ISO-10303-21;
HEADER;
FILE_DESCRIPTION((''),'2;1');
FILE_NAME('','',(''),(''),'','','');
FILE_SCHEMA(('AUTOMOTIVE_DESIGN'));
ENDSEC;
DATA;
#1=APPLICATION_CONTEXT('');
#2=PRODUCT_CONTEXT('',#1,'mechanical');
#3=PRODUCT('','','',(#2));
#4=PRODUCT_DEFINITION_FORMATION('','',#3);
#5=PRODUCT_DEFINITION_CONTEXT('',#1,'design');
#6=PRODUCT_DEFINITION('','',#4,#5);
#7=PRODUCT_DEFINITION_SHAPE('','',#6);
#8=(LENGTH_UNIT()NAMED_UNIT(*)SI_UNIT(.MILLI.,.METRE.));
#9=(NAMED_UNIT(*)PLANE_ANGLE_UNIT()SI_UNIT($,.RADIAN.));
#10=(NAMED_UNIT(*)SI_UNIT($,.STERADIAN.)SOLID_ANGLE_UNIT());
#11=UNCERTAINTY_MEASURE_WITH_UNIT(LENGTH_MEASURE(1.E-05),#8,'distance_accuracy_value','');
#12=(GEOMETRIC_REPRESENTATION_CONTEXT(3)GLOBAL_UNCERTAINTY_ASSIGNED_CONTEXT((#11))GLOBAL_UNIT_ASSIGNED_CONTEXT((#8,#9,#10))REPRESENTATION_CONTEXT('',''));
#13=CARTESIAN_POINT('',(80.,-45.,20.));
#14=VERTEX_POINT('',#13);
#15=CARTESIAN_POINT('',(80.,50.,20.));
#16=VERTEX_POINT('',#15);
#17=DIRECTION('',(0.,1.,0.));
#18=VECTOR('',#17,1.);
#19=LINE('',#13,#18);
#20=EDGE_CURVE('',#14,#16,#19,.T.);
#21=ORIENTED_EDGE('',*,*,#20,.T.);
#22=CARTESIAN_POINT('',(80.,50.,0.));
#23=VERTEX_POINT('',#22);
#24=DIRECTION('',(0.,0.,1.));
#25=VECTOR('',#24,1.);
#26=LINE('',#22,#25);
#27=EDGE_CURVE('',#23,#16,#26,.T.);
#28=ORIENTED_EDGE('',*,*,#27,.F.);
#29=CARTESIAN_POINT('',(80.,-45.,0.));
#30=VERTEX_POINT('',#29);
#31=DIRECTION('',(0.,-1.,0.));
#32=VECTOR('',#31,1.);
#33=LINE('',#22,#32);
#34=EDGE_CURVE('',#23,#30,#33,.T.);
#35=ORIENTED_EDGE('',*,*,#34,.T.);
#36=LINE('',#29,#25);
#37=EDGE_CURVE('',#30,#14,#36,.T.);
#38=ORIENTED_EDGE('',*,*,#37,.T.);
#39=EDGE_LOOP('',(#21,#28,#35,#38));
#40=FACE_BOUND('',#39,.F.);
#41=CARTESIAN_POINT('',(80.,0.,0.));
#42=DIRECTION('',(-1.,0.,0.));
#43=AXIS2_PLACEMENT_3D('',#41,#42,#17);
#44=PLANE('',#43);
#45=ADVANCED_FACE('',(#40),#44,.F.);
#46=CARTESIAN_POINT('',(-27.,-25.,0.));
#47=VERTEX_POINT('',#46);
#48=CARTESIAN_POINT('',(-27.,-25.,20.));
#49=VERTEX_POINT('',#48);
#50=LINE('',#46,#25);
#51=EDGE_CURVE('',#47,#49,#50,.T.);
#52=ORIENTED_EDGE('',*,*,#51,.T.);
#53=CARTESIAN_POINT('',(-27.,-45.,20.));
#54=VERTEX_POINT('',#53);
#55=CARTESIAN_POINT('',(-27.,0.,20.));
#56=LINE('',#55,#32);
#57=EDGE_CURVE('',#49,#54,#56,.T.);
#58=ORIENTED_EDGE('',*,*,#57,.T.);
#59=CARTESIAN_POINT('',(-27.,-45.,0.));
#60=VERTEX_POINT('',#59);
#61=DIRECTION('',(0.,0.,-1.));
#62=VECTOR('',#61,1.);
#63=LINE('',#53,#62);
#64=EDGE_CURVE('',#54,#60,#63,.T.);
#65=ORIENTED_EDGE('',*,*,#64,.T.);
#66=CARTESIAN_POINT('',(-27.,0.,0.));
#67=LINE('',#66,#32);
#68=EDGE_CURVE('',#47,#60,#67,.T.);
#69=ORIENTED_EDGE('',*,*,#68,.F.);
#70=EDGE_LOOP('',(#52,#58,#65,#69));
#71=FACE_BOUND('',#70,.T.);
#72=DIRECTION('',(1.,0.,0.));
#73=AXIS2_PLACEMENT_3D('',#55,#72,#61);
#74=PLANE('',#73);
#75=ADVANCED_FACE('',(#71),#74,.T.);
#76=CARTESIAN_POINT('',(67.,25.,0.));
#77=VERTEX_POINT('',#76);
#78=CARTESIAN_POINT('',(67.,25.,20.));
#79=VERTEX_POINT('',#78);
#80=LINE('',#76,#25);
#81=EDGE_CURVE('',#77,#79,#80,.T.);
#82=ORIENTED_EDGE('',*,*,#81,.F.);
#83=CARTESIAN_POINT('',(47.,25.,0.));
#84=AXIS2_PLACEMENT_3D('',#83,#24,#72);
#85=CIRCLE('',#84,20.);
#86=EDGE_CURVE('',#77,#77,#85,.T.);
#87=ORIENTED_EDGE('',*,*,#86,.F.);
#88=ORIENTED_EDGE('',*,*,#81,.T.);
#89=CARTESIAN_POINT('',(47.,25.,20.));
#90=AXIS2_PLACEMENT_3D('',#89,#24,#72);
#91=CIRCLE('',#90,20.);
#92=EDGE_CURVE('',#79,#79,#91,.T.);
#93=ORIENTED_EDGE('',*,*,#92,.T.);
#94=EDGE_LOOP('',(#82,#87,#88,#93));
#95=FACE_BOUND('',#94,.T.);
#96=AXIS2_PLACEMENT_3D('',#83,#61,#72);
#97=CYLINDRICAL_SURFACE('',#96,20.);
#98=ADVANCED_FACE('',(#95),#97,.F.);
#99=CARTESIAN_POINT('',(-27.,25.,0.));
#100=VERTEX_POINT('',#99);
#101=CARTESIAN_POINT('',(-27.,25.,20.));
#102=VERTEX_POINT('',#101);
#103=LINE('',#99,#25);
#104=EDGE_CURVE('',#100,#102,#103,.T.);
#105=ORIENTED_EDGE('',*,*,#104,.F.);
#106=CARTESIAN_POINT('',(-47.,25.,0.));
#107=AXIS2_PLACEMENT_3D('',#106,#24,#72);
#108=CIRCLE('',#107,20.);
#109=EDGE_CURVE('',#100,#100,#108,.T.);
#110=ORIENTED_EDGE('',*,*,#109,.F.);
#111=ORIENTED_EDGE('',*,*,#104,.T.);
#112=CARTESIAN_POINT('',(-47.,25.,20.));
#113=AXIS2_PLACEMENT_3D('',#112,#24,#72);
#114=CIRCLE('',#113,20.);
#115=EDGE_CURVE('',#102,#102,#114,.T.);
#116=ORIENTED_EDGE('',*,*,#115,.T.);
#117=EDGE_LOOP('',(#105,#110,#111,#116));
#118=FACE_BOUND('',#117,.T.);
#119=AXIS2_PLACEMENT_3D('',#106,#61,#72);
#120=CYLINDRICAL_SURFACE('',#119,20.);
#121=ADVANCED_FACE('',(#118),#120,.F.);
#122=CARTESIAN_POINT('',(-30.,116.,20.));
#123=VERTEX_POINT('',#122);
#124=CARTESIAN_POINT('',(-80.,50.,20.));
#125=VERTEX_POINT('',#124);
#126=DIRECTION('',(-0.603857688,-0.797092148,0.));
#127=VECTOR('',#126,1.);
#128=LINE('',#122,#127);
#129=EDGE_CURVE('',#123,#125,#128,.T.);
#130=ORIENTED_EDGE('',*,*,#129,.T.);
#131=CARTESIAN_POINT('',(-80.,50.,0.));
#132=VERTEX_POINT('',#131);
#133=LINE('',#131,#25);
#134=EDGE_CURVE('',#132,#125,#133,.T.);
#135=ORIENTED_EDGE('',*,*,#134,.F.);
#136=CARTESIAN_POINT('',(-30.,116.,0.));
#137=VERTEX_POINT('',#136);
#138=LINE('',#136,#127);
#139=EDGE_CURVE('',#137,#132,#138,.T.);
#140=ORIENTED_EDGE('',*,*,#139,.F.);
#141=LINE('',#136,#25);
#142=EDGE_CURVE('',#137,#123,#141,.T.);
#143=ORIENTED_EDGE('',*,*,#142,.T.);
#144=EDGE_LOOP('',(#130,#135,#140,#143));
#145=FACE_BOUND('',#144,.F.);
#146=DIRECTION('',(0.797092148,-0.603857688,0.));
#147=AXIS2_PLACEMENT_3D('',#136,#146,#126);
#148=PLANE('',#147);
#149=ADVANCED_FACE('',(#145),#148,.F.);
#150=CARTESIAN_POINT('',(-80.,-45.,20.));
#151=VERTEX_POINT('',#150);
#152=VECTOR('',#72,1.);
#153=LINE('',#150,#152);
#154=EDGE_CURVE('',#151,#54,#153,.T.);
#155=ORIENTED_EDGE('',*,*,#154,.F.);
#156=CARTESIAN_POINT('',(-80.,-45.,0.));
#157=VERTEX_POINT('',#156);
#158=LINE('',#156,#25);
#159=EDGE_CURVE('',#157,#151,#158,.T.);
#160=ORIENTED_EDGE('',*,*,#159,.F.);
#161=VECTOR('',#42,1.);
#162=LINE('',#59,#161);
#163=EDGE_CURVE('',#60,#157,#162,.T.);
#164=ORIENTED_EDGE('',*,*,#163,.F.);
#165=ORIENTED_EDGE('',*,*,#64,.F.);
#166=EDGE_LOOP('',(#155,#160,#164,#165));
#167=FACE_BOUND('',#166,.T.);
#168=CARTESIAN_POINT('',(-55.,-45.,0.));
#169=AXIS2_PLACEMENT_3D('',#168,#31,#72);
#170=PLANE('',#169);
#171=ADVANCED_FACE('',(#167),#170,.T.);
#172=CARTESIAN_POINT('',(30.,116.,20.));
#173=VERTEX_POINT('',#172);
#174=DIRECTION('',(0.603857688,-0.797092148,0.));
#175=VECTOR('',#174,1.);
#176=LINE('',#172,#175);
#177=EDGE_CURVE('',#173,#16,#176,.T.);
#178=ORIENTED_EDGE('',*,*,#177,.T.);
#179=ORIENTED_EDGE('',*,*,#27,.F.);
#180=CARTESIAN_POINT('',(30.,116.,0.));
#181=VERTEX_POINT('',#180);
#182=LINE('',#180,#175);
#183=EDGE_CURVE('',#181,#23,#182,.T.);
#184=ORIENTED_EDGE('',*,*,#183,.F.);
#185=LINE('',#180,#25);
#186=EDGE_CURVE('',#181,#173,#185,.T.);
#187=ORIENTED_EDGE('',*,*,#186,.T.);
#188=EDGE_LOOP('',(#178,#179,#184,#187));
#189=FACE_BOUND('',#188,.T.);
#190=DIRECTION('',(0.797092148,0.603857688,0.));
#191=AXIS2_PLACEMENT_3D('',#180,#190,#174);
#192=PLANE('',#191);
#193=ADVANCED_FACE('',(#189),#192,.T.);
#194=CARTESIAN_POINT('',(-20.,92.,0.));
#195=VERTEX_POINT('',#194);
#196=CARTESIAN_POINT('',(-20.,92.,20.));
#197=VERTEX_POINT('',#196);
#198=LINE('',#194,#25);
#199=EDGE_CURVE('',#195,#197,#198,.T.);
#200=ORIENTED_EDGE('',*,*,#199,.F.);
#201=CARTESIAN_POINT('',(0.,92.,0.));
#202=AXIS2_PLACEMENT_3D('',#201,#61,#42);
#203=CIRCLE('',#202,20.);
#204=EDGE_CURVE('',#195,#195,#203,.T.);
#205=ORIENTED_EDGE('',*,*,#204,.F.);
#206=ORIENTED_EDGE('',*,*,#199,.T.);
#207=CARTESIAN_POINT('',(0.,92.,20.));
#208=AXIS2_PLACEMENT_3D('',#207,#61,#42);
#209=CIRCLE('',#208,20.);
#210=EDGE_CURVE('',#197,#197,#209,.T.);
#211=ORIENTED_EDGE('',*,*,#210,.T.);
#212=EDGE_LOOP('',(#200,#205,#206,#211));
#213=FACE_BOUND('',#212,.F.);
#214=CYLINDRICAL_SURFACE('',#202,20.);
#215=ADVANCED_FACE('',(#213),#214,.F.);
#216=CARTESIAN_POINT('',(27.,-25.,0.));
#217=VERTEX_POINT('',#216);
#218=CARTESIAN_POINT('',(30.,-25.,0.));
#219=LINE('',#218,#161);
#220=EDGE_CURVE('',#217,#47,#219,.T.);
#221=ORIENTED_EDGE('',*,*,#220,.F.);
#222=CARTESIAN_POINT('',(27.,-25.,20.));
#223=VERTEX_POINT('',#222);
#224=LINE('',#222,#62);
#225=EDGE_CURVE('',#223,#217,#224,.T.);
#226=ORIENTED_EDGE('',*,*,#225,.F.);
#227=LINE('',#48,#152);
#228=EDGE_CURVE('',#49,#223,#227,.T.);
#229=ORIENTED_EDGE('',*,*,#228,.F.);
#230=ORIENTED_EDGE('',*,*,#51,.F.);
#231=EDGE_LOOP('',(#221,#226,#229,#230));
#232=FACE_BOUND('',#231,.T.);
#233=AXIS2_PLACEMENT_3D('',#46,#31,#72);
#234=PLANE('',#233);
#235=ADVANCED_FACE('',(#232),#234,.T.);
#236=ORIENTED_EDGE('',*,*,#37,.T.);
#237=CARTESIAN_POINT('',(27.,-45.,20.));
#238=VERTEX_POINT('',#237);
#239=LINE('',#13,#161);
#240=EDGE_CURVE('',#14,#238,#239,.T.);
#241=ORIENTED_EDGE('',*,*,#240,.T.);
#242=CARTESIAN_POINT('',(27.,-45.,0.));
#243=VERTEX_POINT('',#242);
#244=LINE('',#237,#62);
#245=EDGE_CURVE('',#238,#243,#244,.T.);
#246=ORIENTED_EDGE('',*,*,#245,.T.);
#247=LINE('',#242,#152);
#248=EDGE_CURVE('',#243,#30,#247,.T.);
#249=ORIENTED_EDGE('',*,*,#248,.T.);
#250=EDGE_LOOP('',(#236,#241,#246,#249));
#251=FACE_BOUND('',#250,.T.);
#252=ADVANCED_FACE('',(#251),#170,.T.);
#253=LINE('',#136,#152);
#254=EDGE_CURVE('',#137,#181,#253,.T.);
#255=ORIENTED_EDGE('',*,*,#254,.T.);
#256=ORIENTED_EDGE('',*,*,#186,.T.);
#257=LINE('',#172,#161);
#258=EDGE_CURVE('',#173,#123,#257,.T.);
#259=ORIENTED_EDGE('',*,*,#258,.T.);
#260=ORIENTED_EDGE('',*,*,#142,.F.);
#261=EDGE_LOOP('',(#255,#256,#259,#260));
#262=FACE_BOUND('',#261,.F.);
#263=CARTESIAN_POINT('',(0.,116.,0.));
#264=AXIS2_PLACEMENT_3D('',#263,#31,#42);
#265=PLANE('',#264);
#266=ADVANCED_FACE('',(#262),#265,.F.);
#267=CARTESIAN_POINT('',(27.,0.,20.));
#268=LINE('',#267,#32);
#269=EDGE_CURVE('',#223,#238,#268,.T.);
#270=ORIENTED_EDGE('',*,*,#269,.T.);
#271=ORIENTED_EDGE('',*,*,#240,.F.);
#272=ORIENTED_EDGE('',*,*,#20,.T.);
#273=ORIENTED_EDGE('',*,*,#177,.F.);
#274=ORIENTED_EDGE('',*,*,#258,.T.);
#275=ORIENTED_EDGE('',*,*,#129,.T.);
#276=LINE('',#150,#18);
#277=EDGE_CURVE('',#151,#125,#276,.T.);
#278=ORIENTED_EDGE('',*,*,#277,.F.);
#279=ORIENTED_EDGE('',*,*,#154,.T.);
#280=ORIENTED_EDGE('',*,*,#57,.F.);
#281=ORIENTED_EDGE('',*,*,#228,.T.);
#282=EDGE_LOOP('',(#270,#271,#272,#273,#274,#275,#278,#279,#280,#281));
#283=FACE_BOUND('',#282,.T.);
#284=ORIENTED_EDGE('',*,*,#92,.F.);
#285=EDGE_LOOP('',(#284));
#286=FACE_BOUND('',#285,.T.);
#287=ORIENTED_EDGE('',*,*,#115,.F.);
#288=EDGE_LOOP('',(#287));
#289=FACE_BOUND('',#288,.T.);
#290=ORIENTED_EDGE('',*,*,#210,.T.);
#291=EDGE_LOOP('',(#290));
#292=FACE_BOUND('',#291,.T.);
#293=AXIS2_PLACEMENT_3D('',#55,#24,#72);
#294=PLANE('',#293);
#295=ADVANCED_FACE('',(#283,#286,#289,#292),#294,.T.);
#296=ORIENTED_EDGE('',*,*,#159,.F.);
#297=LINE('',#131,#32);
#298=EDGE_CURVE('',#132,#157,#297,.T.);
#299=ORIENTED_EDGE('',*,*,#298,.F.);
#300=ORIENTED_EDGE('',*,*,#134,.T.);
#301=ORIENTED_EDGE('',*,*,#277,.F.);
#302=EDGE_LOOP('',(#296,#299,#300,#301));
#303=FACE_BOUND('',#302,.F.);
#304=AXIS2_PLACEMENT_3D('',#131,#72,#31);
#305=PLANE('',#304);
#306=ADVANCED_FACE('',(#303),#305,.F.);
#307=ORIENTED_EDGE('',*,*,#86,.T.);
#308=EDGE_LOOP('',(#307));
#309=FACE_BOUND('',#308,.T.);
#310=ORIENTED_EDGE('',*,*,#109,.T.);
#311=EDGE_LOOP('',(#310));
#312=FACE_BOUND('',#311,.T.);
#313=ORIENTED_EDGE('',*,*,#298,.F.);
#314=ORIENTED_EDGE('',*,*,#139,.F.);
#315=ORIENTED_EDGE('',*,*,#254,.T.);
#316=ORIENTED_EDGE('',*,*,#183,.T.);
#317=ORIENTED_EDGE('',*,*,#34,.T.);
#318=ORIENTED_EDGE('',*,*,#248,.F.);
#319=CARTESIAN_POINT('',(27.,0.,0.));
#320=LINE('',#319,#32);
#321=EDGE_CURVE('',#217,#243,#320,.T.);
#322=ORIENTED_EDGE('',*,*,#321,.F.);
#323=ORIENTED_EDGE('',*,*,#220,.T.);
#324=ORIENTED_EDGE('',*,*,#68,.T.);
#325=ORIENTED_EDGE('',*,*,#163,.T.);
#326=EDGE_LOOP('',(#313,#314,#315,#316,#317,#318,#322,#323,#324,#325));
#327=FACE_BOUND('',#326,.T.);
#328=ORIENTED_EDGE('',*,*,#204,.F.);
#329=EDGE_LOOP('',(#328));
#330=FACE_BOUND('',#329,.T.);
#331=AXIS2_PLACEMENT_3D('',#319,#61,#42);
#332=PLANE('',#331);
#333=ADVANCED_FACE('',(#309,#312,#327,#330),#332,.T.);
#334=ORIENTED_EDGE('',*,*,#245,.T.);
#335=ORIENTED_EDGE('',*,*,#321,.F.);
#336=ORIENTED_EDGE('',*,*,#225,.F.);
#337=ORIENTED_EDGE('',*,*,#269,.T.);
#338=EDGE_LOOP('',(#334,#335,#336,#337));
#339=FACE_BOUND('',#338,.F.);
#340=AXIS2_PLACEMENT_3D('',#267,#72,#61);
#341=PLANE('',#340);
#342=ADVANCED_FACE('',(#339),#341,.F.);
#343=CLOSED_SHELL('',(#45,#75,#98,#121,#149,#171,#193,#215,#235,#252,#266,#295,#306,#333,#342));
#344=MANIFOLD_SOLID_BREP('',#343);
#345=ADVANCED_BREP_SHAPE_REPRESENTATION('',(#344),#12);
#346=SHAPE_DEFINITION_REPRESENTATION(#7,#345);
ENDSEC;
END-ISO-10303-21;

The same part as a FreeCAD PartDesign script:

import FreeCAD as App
import Part
import Sketcher
from FreeCAD import Vector

doc = App.newDocument("Part")
body = doc.addObject("PartDesign::Body", "Body")

sketch1 = body.newObject("Sketcher::SketchObject", "Sketch")
sketch1.AttachmentSupport = (doc.getObject("XY_Plane"), [""])
sketch1.MapMode = "FlatFace"
sketch1.addGeometry(Part.LineSegment(Vector(-80, 50, 0), Vector(-80, -15, 0)), False)
sketch1.addGeometry(Part.LineSegment(Vector(-80, -15, 0), Vector(-55, -15, 0)), False)
sketch1.addGeometry(Part.LineSegment(Vector(-55, -15, 0), Vector(-55, 0, 0)), False)
sketch1.addGeometry(Part.LineSegment(Vector(-55, 0, 0), Vector(55, 0, 0)), False)
sketch1.addGeometry(Part.LineSegment(Vector(55, 0, 0), Vector(55, -15, 0)), False)
sketch1.addGeometry(Part.LineSegment(Vector(55, -15, 0), Vector(80, -15, 0)), False)
sketch1.addGeometry(Part.LineSegment(Vector(80, -15, 0), Vector(80, 50, 0)), False)
sketch1.addGeometry(Part.LineSegment(Vector(80, 50, 0), Vector(30, 116, 0)), False)
sketch1.addGeometry(Part.LineSegment(Vector(30, 116, 0), Vector(-30, 116, 0)), False)
sketch1.addGeometry(Part.LineSegment(Vector(-30, 116, 0), Vector(-80, 50, 0)), False)
sketch1.addGeometry(Part.Circle(Vector(-47, 25, 0), Vector(0, 0, 1), 20), False)
sketch1.addGeometry(Part.Circle(Vector(47, 25, 0), Vector(0, 0, 1), 20), False)
sketch1.addGeometry(Part.Circle(Vector(0, 92, 0), Vector(0, 0, 1), 8), False)
sketch1.addConstraint(Sketcher.Constraint("Coincident", 0, 2, 1, 1))
sketch1.addConstraint(Sketcher.Constraint("Coincident", 1, 2, 2, 1))
sketch1.addConstraint(Sketcher.Constraint("Coincident", 2, 2, 3, 1))
sketch1.addConstraint(Sketcher.Constraint("Coincident", 3, 2, 4, 1))
sketch1.addConstraint(Sketcher.Constraint("Coincident", 4, 2, 5, 1))
sketch1.addConstraint(Sketcher.Constraint("Coincident", 5, 2, 6, 1))
sketch1.addConstraint(Sketcher.Constraint("Coincident", 6, 2, 7, 1))
sketch1.addConstraint(Sketcher.Constraint("Coincident", 7, 2, 8, 1))
sketch1.addConstraint(Sketcher.Constraint("Coincident", 8, 2, 9, 1))
sketch1.addConstraint(Sketcher.Constraint("Coincident", 9, 2, 0, 1))
sketch1.addConstraint(Sketcher.Constraint("Vertical", 0))
sketch1.addConstraint(Sketcher.Constraint("Horizontal", 1))
sketch1.addConstraint(Sketcher.Constraint("Vertical", 2))
sketch1.addConstraint(Sketcher.Constraint("Horizontal", 3))
sketch1.addConstraint(Sketcher.Constraint("Vertical", 4))
sketch1.addConstraint(Sketcher.Constraint("Horizontal", 5))
sketch1.addConstraint(Sketcher.Constraint("Vertical", 6))
sketch1.addConstraint(Sketcher.Constraint("Horizontal", 8))
sketch1.addConstraint(Sketcher.Constraint("Equal", 10, 11))
sketch1.addConstraint(Sketcher.Constraint("Symmetric", 2, 2, 3, 2, -1, 1))
sketch1.addConstraint(Sketcher.Constraint("Symmetric", 10, 3, 11, 3, -2))
sketch1.addConstraint(Sketcher.Constraint("Symmetric", 0, 2, 5, 2, -2))
sketch1.addConstraint(Sketcher.Constraint("PointOnObject", 12, 3, -2))
sketch1.addConstraint(Sketcher.Constraint("Horizontal", 6, 2, 9, 2))
sketch1.addConstraint(Sketcher.Constraint("Equal", 7, 9))
sketch1.addConstraint(Sketcher.Constraint("Diameter", 10, 40.0))
sketch1.addConstraint(Sketcher.Constraint("Diameter", 12, 16.0))
sketch1.addConstraint(Sketcher.Constraint("DistanceX", 1, 1, 1, 2, 25.0))
sketch1.addConstraint(Sketcher.Constraint("DistanceX", 8, 2, 8, 1, 60.0))
sketch1.addConstraint(Sketcher.Constraint("DistanceY", 2, 1, 2, 2, 15.0))
sketch1.addConstraint(Sketcher.Constraint("DistanceY", -1, 1, 10, 3, 25.0))
sketch1.addConstraint(Sketcher.Constraint("DistanceY", -1, 1, 6, 2, 50.0))
sketch1.addConstraint(Sketcher.Constraint("DistanceY", 12, 3, 7, 2, 24.0))
sketch1.addConstraint(Sketcher.Constraint("DistanceX", 7, 2, 6, 2, 50.0))
sketch1.addConstraint(Sketcher.Constraint("DistanceX", 10, 3, -1, 1, 47.0))
sketch1.addConstraint(Sketcher.Constraint("DistanceY", -1, 1, 12, 3, 92.0))
pad1 = body.newObject("PartDesign::Pad", "Pad")
pad1.Profile = sketch1
pad1.Length = 20

sketch2 = body.newObject("Sketcher::SketchObject", "Sketch001")
sketch2.AttachmentSupport = (doc.getObject("XY_Plane"), [""])
sketch2.MapMode = "FlatFace"
sketch2.addGeometry(Part.Circle(Vector(0, 92, 0), Vector(0, 0, 1), 20), False)
sketch2.addGeometry(Part.Circle(Vector(0, 92, 0), Vector(0, 0, 1), 8), False)
sketch2.addConstraint(Sketcher.Constraint("Coincident", 1, 3, 0, 3))
sketch2.addConstraint(Sketcher.Constraint("PointOnObject", 0, 3, -2))
sketch2.addConstraint(Sketcher.Constraint("Diameter", 0, 40.0))
sketch2.addConstraint(Sketcher.Constraint("Diameter", 1, 16.0))
sketch2.addConstraint(Sketcher.Constraint("DistanceY", -1, 1, 0, 3, 92.0))
pocket1 = body.newObject("PartDesign::Pocket", "Pocket")
pocket1.Profile = sketch2
pocket1.Length = 20
pocket1.Reversed = True

sketch3 = body.newObject("Sketcher::SketchObject", "Sketch002")
sketch3.AttachmentSupport = (doc.getObject("XZ_Plane"), [""])
sketch3.MapMode = "FlatFace"
sketch3.addGeometry(Part.LineSegment(Vector(-80, 20, 0), Vector(-80, 0, 0)), False)
sketch3.addGeometry(Part.LineSegment(Vector(-80, 0, 0), Vector(-27, 0, 0)), False)
sketch3.addGeometry(Part.LineSegment(Vector(-27, 0, 0), Vector(-27, 20, 0)), False)
sketch3.addGeometry(Part.LineSegment(Vector(-27, 20, 0), Vector(-80, 20, 0)), False)
sketch3.addGeometry(Part.LineSegment(Vector(27, 0, 0), Vector(80, 0, 0)), False)
sketch3.addGeometry(Part.LineSegment(Vector(80, 0, 0), Vector(80, 20, 0)), False)
sketch3.addGeometry(Part.LineSegment(Vector(80, 20, 0), Vector(27, 20, 0)), False)
sketch3.addGeometry(Part.LineSegment(Vector(27, 20, 0), Vector(27, 0, 0)), False)
sketch3.addConstraint(Sketcher.Constraint("Coincident", 0, 2, 1, 1))
sketch3.addConstraint(Sketcher.Constraint("Coincident", 1, 2, 2, 1))
sketch3.addConstraint(Sketcher.Constraint("Coincident", 2, 2, 3, 1))
sketch3.addConstraint(Sketcher.Constraint("Coincident", 3, 2, 0, 1))
sketch3.addConstraint(Sketcher.Constraint("Coincident", 4, 2, 5, 1))
sketch3.addConstraint(Sketcher.Constraint("Coincident", 5, 2, 6, 1))
sketch3.addConstraint(Sketcher.Constraint("Coincident", 6, 2, 7, 1))
sketch3.addConstraint(Sketcher.Constraint("Coincident", 7, 2, 4, 1))
sketch3.addConstraint(Sketcher.Constraint("Vertical", 0))
sketch3.addConstraint(Sketcher.Constraint("Horizontal", 1))
sketch3.addConstraint(Sketcher.Constraint("Vertical", 2))
sketch3.addConstraint(Sketcher.Constraint("Horizontal", 3))
sketch3.addConstraint(Sketcher.Constraint("Horizontal", 4))
sketch3.addConstraint(Sketcher.Constraint("Vertical", 5))
sketch3.addConstraint(Sketcher.Constraint("Horizontal", 6))
sketch3.addConstraint(Sketcher.Constraint("Vertical", 7))
sketch3.addConstraint(Sketcher.Constraint("Symmetric", 0, 2, 4, 2, -1, 1))
sketch3.addConstraint(Sketcher.Constraint("Symmetric", 2, 2, 6, 2, -2))
sketch3.addConstraint(Sketcher.Constraint("PointOnObject", 0, 2, -1))
sketch3.addConstraint(Sketcher.Constraint("DistanceX", 1, 1, 1, 2, 53.0))
sketch3.addConstraint(Sketcher.Constraint("DistanceY", 0, 2, 0, 1, 20.0))
sketch3.addConstraint(Sketcher.Constraint("DistanceX", 0, 2, -1, 1, 80.0))
pad2 = body.newObject("PartDesign::Pad", "Pad001")
pad2.Profile = sketch3
pad2.Length = 45

sketch4 = body.newObject("Sketcher::SketchObject", "Sketch003")
sketch4.AttachmentSupport = (doc.getObject("XZ_Plane"), [""])
sketch4.MapMode = "FlatFace"
sketch4.addGeometry(Part.LineSegment(Vector(-27, 0, 0), Vector(27, 0, 0)), False)
sketch4.addGeometry(Part.LineSegment(Vector(27, 0, 0), Vector(27, 20, 0)), False)
sketch4.addGeometry(Part.LineSegment(Vector(27, 20, 0), Vector(-27, 20, 0)), False)
sketch4.addGeometry(Part.LineSegment(Vector(-27, 20, 0), Vector(-27, 0, 0)), False)
sketch4.addConstraint(Sketcher.Constraint("Coincident", 0, 2, 1, 1))
sketch4.addConstraint(Sketcher.Constraint("Coincident", 1, 2, 2, 1))
sketch4.addConstraint(Sketcher.Constraint("Coincident", 2, 2, 3, 1))
sketch4.addConstraint(Sketcher.Constraint("Coincident", 3, 2, 0, 1))
sketch4.addConstraint(Sketcher.Constraint("Horizontal", 0))
sketch4.addConstraint(Sketcher.Constraint("Vertical", 1))
sketch4.addConstraint(Sketcher.Constraint("Horizontal", 2))
sketch4.addConstraint(Sketcher.Constraint("Vertical", 3))
sketch4.addConstraint(Sketcher.Constraint("Symmetric", 0, 2, 3, 2, -1, 1))
sketch4.addConstraint(Sketcher.Constraint("DistanceX", 0, 1, 0, 2, 54.0))
sketch4.addConstraint(Sketcher.Constraint("DistanceY", 1, 1, 1, 2, 20.0))
pad3 = body.newObject("PartDesign::Pad", "Pad002")
pad3.Profile = sketch4
pad3.Length = 25

doc.recompute()
